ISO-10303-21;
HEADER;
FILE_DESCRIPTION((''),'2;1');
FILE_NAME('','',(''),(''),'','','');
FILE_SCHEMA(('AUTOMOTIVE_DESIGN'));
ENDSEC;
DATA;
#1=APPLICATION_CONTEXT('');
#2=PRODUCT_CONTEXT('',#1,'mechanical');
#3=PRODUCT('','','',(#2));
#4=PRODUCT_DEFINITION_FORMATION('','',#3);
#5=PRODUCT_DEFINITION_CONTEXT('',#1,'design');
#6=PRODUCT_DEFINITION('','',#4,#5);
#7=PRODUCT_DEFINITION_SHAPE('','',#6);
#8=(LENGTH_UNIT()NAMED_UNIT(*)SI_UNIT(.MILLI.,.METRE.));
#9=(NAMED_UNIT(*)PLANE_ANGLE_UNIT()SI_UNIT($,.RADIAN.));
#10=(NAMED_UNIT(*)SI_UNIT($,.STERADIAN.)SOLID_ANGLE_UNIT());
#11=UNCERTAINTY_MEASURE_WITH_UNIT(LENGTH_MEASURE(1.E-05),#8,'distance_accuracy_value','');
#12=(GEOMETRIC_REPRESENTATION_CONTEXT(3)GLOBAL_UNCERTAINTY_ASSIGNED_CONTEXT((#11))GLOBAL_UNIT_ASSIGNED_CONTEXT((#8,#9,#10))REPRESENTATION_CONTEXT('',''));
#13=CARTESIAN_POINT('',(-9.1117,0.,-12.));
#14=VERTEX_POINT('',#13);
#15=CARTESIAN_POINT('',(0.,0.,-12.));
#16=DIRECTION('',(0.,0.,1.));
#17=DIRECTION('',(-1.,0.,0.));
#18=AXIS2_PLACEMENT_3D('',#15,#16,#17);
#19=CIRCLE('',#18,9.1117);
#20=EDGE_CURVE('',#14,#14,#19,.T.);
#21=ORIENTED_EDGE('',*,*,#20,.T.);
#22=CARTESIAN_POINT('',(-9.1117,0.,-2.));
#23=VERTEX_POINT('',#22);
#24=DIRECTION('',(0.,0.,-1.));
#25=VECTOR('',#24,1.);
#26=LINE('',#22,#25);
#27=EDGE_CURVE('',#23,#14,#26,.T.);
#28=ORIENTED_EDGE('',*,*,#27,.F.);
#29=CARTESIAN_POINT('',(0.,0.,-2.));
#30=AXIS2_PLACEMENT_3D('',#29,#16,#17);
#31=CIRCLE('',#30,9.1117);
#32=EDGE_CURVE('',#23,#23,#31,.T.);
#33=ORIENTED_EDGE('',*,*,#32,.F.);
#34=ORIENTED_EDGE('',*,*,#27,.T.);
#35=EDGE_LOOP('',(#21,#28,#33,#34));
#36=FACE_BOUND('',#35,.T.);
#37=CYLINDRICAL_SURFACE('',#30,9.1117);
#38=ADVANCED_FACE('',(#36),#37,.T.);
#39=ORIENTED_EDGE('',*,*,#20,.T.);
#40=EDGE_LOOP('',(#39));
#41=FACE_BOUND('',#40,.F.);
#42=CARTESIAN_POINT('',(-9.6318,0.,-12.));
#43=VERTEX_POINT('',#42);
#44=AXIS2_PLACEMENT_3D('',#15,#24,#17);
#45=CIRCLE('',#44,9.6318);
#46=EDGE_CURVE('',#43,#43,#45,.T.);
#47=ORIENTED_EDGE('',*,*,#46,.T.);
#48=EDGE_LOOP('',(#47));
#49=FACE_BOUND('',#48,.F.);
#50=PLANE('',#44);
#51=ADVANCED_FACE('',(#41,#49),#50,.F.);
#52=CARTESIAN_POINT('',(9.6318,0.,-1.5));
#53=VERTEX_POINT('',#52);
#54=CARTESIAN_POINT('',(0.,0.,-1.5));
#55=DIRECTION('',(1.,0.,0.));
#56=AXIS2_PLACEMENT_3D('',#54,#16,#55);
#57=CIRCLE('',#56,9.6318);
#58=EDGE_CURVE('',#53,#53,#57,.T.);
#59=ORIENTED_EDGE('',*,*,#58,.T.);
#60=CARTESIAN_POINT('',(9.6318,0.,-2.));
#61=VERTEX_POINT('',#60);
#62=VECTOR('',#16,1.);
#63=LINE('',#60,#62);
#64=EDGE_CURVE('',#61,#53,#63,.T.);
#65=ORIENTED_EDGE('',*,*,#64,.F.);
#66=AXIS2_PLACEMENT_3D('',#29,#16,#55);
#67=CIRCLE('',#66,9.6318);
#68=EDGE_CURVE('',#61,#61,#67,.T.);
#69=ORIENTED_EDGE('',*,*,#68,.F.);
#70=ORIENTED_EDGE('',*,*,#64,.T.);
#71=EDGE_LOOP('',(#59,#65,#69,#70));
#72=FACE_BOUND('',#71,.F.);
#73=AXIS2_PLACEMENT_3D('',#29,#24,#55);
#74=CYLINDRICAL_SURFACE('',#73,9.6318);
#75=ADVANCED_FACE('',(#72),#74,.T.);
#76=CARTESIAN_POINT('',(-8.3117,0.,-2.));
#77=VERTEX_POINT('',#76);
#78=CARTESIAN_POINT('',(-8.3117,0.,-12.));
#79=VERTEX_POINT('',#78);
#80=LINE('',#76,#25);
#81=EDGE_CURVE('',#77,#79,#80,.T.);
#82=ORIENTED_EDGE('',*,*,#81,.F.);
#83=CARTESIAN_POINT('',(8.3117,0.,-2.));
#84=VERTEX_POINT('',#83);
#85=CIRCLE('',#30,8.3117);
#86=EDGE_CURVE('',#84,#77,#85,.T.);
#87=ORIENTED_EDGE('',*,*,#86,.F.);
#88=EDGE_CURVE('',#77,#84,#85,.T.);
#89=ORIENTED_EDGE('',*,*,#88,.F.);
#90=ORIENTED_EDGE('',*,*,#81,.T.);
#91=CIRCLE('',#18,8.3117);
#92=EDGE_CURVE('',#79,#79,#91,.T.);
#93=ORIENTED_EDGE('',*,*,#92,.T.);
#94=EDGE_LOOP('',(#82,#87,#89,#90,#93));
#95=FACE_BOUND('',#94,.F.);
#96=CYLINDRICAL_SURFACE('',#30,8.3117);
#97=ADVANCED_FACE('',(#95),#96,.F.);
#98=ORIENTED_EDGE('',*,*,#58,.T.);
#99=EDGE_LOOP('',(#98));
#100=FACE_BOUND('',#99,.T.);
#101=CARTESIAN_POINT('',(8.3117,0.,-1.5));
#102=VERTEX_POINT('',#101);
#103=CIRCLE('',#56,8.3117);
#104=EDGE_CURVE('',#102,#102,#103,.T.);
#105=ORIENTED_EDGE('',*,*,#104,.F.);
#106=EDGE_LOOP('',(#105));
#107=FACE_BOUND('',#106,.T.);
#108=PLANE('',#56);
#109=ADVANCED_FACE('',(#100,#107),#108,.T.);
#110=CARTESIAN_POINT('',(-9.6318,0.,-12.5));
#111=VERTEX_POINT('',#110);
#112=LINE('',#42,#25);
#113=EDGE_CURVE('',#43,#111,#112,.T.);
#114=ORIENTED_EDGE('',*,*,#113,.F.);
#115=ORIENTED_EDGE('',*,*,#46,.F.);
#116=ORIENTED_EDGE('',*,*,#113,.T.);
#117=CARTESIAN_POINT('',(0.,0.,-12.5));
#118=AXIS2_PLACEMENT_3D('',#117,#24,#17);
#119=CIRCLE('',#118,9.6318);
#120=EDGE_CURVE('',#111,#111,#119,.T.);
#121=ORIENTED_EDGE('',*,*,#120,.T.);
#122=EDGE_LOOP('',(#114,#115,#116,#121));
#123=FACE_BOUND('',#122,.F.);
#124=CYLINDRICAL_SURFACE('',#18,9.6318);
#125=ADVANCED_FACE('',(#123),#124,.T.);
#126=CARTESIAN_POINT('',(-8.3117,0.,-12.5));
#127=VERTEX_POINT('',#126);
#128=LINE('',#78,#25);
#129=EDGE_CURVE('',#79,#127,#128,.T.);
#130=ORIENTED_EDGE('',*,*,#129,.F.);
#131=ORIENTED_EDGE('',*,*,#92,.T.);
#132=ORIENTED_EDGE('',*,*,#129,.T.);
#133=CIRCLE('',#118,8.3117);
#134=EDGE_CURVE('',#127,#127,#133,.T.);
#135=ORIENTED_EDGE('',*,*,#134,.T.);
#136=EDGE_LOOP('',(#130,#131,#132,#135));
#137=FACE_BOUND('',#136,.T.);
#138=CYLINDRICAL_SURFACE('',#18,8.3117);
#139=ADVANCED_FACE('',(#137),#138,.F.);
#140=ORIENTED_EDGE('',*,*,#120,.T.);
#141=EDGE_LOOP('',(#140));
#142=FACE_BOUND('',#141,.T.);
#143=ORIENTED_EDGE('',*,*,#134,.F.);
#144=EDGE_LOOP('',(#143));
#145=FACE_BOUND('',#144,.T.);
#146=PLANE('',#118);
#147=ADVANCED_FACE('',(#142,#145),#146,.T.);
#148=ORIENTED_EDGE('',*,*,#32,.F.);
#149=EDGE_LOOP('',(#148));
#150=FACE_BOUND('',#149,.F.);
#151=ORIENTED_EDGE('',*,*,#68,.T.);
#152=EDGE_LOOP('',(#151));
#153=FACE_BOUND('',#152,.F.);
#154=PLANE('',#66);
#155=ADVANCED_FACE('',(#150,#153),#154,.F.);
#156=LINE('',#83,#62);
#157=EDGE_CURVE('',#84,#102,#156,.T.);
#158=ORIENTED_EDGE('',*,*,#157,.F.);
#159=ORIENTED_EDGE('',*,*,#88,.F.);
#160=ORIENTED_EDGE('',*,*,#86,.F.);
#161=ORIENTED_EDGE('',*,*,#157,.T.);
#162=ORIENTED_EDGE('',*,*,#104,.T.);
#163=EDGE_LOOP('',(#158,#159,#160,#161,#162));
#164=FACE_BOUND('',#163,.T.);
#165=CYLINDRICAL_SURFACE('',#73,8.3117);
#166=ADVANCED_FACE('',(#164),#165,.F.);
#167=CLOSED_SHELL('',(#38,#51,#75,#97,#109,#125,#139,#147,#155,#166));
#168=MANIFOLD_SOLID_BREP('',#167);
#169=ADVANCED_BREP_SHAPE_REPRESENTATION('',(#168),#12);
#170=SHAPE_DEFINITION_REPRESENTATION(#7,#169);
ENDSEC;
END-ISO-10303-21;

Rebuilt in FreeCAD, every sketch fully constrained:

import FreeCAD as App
import Part
import Sketcher

V = App.Vector
Q = App.Units.Quantity

doc = App.newDocument("Part")
params = doc.addObject("Spreadsheet::Sheet", "Params")
for row, (alias, value) in enumerate([
    ("pad1_length", "10 mm"),
    ("pad2_length", "0.5 mm"),
    ("pad3_length", "0.5 mm"),
], start=1):
    params.set(f"A{row}", alias)
    params.set(f"B{row}", "=" + value)
    params.setAlias(f"B{row}", alias)

body = doc.addObject("PartDesign::Body", "Body")

# Sketch on XY plane
sketch1 = body.newObject("Sketcher::SketchObject", "Sketch")
sketch1.AttachmentSupport = (doc.getObject("XY_Plane"), [""])
sketch1.MapMode = "FlatFace"
sketch1.AttachmentOffset = App.Placement(V(0, 0, -2), App.Rotation())
sketch1.addGeometry(Part.Circle(V(0, 0, 0), V(0, 0, 1), 9.1117), False)
sketch1.addGeometry(Part.Circle(V(0, 0, 0), V(0, 0, 1), 8.3117), False)
sketch1.addConstraint(Sketcher.Constraint("Coincident", 0, 3, -1, 1))
sketch1.addConstraint(Sketcher.Constraint("Coincident", 1, 3, -1, 1))
sketch1.addConstraint(Sketcher.Constraint("Diameter", 0, Q("18.2234 mm")))
sketch1.addConstraint(Sketcher.Constraint("Diameter", 1, Q("16.6234 mm")))
pad1 = body.newObject("PartDesign::Pad", "Pad")
pad1.Profile = sketch1
pad1.setExpression("Length", "Params.pad1_length")
pad1.Reversed = True

# Sketch on XY plane
sketch2 = body.newObject("Sketcher::SketchObject", "Sketch001")
sketch2.AttachmentSupport = (doc.getObject("XY_Plane"), [""])
sketch2.MapMode = "FlatFace"
sketch2.AttachmentOffset = App.Placement(V(0, 0, -2), App.Rotation())
sketch2.addGeometry(Part.Circle(V(0, 0, 0), V(0, 0, 1), 9.6318), False)
sketch2.addGeometry(Part.Circle(V(0, 0, 0), V(0, 0, 1), 8.3117), False)
sketch2.addConstraint(Sketcher.Constraint("Coincident", 0, 3, -1, 1))
sketch2.addConstraint(Sketcher.Constraint("Coincident", 1, 3, -1, 1))
sketch2.addConstraint(Sketcher.Constraint("Diameter", 0, Q("19.2636 mm")))
sketch2.addConstraint(Sketcher.Constraint("Diameter", 1, Q("16.6234 mm")))
pad2 = body.newObject("PartDesign::Pad", "Pad001")
pad2.Profile = sketch2
pad2.setExpression("Length", "Params.pad2_length")

# Sketch on XY plane
sketch3 = body.newObject("Sketcher::SketchObject", "Sketch002")
sketch3.AttachmentSupport = (doc.getObject("XY_Plane"), [""])
sketch3.MapMode = "FlatFace"
sketch3.AttachmentOffset = App.Placement(V(0, 0, -12), App.Rotation())
sketch3.addGeometry(Part.Circle(V(0, 0, 0), V(0, 0, 1), 9.6318), False)
sketch3.addGeometry(Part.Circle(V(0, 0, 0), V(0, 0, 1), 8.3117), False)
sketch3.addConstraint(Sketcher.Constraint("Coincident", 0, 3, -1, 1))
sketch3.addConstraint(Sketcher.Constraint("Coincident", 1, 3, -1, 1))
sketch3.addConstraint(Sketcher.Constraint("Diameter", 0, Q("19.2636 mm")))
sketch3.addConstraint(Sketcher.Constraint("Diameter", 1, Q("16.6234 mm")))
pad3 = body.newObject("PartDesign::Pad", "Pad002")
pad3.Profile = sketch3
pad3.setExpression("Length", "Params.pad3_length")
pad3.Reversed = True

doc.recompute()
